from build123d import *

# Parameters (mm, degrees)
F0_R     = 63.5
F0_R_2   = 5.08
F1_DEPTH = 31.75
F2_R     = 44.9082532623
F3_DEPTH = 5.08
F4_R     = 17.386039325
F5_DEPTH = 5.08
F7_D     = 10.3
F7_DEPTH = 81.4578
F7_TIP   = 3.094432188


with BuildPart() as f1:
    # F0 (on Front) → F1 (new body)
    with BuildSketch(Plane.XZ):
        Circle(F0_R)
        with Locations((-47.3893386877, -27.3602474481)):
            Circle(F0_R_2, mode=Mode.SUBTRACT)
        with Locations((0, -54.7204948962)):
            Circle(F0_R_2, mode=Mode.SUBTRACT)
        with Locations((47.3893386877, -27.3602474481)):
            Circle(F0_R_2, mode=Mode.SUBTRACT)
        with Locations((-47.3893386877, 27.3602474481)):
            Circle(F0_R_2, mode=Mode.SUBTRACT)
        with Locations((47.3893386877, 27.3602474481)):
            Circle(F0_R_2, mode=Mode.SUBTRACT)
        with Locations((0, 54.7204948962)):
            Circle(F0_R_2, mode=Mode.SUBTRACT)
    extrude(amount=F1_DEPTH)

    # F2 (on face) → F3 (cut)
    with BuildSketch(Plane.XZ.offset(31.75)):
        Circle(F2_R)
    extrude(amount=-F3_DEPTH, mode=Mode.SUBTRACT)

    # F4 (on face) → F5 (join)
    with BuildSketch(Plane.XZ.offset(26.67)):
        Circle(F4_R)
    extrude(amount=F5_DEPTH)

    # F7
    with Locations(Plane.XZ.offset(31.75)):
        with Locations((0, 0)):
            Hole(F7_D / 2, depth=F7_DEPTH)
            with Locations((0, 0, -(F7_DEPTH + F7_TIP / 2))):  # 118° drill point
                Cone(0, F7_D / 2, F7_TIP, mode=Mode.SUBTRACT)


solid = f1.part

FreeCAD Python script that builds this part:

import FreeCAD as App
import Part
import Sketcher
Q = App.Units.Quantity

doc = App.newDocument("Part")
body = doc.addObject("PartDesign::Body", "Body")

sketch1 = doc.addObject("Sketcher::SketchObject", "Sketch")
body.addObject(sketch1)
sketch1.AttachmentSupport = (doc.XZ_Plane, [""])
sketch1.MapMode = "FlatFace"
sketch1.addGeometry([
    Part.Circle(App.Vector(0, 0, 0), App.Vector(0, 0, 1), 64),
    Part.Circle(App.Vector(-47, -27, 0), App.Vector(0, 0, 1), 5),
    Part.Circle(App.Vector(0, -55, 0), App.Vector(0, 0, 1), 5),
    Part.Circle(App.Vector(47, -27, 0), App.Vector(0, 0, 1), 5),
    Part.Circle(App.Vector(-47, 27, 0), App.Vector(0, 0, 1), 5),
    Part.Circle(App.Vector(47, 27, 0), App.Vector(0, 0, 1), 5),
    Part.Circle(App.Vector(0, 55, 0), App.Vector(0, 0, 1), 5),
], False)
sketch1.addConstraint([
    Sketcher.Constraint("Coincident", 0, 3, -1, 1),
    Sketcher.Constraint("Equal", 1, 2),
    Sketcher.Constraint("Equal", 2, 3),
    Sketcher.Constraint("Equal", 3, 4),
    Sketcher.Constraint("Equal", 4, 5),
    Sketcher.Constraint("Equal", 5, 6),
    Sketcher.Constraint("Symmetric", 3, 3, 4, 3, -1, 1),
    Sketcher.Constraint("Symmetric", 1, 3, 5, 3, -1, 1),
    Sketcher.Constraint("Symmetric", 2, 3, 6, 3, -1, 1),
    Sketcher.Constraint("Symmetric", 1, 3, 3, 3, -2),
    Sketcher.Constraint("PointOnObject", 2, 3, -2),
    Sketcher.Constraint("Diameter", 0, Q("5 in")),
    Sketcher.Constraint("Diameter", 1, Q("0.4 in")),
    Sketcher.Constraint("DistanceX", 1, 3, -1, 1, Q("47.389339 mm")),
    Sketcher.Constraint("DistanceY", 1, 3, -1, 1, Q("27.360247 mm")),
    Sketcher.Constraint("DistanceY", 2, 3, -1, 1, Q("54.720495 mm")),
])
pad1 = doc.addObject("PartDesign::Pad", "Pad")
body.addObject(pad1)
pad1.Profile = sketch1
pad1.Length = Q("1.25 in")

sketch2 = doc.addObject("Sketcher::SketchObject", "Sketch001")
body.addObject(sketch2)
sketch2.AttachmentSupport = (doc.XZ_Plane, [""])
sketch2.MapMode = "FlatFace"
sketch2.AttachmentOffset = App.Placement(App.Vector(0, 0, 1.25 * 25.4), App.Rotation())
sketch2.addGeometry(Part.Circle(App.Vector(0, 0, 0), App.Vector(0, 0, 1), 45), False)
sketch2.addConstraint([
    Sketcher.Constraint("Coincident", 0, 3, -1, 1),
    Sketcher.Constraint("Diameter", 0, Q("89.816507 mm")),
])
pocket1 = doc.addObject("PartDesign::Pocket", "Pocket")
body.addObject(pocket1)
pocket1.Profile = sketch2
pocket1.Length = Q("0.2 in")

sketch3 = doc.addObject("Sketcher::SketchObject", "Sketch002")
body.addObject(sketch3)
sketch3.AttachmentSupport = (doc.XZ_Plane, [""])
sketch3.MapMode = "FlatFace"
sketch3.AttachmentOffset = App.Placement(App.Vector(0, 0, 1.05 * 25.4), App.Rotation())
sketch3.addGeometry(Part.Circle(App.Vector(0, 0, 0), App.Vector(0, 0, 1), 17), False)
sketch3.addConstraint([
    Sketcher.Constraint("Coincident", 0, 3, -1, 1),
    Sketcher.Constraint("Diameter", 0, Q("34.772079 mm")),
])
pad2 = doc.addObject("PartDesign::Pad", "Pad001")
body.addObject(pad2)
pad2.Profile = sketch3
pad2.Length = Q("0.2 in")

sketch4 = doc.addObject("Sketcher::SketchObject", "Sketch003")
body.addObject(sketch4)
sketch4.AttachmentSupport = (doc.XZ_Plane, [""])
sketch4.MapMode = "FlatFace"
sketch4.AttachmentOffset = App.Placement(App.Vector(0, 0, 1.25 * 25.4), App.Rotation())
sketch4.addGeometry(Part.Circle(App.Vector(0, 0, 0), App.Vector(0, 0, 1), 5), False)
sketch4.addConstraint([
    Sketcher.Constraint("Coincident", 0, 3, -1, 1),
    Sketcher.Constraint("Diameter", 0, Q("10.3 mm")),
])
doc.recompute()
hole = doc.addObject("PartDesign::Hole", "Hole")
body.addObject(hole)
hole.Profile = sketch4
hole.ThreadType = "None"
hole.Diameter = 10.3
hole.DepthType = "Dimension"
hole.Depth = Q("3.207 in")
hole.DrillPoint = "Angled"
hole.DrillPointAngle = 118

doc.recompute()
